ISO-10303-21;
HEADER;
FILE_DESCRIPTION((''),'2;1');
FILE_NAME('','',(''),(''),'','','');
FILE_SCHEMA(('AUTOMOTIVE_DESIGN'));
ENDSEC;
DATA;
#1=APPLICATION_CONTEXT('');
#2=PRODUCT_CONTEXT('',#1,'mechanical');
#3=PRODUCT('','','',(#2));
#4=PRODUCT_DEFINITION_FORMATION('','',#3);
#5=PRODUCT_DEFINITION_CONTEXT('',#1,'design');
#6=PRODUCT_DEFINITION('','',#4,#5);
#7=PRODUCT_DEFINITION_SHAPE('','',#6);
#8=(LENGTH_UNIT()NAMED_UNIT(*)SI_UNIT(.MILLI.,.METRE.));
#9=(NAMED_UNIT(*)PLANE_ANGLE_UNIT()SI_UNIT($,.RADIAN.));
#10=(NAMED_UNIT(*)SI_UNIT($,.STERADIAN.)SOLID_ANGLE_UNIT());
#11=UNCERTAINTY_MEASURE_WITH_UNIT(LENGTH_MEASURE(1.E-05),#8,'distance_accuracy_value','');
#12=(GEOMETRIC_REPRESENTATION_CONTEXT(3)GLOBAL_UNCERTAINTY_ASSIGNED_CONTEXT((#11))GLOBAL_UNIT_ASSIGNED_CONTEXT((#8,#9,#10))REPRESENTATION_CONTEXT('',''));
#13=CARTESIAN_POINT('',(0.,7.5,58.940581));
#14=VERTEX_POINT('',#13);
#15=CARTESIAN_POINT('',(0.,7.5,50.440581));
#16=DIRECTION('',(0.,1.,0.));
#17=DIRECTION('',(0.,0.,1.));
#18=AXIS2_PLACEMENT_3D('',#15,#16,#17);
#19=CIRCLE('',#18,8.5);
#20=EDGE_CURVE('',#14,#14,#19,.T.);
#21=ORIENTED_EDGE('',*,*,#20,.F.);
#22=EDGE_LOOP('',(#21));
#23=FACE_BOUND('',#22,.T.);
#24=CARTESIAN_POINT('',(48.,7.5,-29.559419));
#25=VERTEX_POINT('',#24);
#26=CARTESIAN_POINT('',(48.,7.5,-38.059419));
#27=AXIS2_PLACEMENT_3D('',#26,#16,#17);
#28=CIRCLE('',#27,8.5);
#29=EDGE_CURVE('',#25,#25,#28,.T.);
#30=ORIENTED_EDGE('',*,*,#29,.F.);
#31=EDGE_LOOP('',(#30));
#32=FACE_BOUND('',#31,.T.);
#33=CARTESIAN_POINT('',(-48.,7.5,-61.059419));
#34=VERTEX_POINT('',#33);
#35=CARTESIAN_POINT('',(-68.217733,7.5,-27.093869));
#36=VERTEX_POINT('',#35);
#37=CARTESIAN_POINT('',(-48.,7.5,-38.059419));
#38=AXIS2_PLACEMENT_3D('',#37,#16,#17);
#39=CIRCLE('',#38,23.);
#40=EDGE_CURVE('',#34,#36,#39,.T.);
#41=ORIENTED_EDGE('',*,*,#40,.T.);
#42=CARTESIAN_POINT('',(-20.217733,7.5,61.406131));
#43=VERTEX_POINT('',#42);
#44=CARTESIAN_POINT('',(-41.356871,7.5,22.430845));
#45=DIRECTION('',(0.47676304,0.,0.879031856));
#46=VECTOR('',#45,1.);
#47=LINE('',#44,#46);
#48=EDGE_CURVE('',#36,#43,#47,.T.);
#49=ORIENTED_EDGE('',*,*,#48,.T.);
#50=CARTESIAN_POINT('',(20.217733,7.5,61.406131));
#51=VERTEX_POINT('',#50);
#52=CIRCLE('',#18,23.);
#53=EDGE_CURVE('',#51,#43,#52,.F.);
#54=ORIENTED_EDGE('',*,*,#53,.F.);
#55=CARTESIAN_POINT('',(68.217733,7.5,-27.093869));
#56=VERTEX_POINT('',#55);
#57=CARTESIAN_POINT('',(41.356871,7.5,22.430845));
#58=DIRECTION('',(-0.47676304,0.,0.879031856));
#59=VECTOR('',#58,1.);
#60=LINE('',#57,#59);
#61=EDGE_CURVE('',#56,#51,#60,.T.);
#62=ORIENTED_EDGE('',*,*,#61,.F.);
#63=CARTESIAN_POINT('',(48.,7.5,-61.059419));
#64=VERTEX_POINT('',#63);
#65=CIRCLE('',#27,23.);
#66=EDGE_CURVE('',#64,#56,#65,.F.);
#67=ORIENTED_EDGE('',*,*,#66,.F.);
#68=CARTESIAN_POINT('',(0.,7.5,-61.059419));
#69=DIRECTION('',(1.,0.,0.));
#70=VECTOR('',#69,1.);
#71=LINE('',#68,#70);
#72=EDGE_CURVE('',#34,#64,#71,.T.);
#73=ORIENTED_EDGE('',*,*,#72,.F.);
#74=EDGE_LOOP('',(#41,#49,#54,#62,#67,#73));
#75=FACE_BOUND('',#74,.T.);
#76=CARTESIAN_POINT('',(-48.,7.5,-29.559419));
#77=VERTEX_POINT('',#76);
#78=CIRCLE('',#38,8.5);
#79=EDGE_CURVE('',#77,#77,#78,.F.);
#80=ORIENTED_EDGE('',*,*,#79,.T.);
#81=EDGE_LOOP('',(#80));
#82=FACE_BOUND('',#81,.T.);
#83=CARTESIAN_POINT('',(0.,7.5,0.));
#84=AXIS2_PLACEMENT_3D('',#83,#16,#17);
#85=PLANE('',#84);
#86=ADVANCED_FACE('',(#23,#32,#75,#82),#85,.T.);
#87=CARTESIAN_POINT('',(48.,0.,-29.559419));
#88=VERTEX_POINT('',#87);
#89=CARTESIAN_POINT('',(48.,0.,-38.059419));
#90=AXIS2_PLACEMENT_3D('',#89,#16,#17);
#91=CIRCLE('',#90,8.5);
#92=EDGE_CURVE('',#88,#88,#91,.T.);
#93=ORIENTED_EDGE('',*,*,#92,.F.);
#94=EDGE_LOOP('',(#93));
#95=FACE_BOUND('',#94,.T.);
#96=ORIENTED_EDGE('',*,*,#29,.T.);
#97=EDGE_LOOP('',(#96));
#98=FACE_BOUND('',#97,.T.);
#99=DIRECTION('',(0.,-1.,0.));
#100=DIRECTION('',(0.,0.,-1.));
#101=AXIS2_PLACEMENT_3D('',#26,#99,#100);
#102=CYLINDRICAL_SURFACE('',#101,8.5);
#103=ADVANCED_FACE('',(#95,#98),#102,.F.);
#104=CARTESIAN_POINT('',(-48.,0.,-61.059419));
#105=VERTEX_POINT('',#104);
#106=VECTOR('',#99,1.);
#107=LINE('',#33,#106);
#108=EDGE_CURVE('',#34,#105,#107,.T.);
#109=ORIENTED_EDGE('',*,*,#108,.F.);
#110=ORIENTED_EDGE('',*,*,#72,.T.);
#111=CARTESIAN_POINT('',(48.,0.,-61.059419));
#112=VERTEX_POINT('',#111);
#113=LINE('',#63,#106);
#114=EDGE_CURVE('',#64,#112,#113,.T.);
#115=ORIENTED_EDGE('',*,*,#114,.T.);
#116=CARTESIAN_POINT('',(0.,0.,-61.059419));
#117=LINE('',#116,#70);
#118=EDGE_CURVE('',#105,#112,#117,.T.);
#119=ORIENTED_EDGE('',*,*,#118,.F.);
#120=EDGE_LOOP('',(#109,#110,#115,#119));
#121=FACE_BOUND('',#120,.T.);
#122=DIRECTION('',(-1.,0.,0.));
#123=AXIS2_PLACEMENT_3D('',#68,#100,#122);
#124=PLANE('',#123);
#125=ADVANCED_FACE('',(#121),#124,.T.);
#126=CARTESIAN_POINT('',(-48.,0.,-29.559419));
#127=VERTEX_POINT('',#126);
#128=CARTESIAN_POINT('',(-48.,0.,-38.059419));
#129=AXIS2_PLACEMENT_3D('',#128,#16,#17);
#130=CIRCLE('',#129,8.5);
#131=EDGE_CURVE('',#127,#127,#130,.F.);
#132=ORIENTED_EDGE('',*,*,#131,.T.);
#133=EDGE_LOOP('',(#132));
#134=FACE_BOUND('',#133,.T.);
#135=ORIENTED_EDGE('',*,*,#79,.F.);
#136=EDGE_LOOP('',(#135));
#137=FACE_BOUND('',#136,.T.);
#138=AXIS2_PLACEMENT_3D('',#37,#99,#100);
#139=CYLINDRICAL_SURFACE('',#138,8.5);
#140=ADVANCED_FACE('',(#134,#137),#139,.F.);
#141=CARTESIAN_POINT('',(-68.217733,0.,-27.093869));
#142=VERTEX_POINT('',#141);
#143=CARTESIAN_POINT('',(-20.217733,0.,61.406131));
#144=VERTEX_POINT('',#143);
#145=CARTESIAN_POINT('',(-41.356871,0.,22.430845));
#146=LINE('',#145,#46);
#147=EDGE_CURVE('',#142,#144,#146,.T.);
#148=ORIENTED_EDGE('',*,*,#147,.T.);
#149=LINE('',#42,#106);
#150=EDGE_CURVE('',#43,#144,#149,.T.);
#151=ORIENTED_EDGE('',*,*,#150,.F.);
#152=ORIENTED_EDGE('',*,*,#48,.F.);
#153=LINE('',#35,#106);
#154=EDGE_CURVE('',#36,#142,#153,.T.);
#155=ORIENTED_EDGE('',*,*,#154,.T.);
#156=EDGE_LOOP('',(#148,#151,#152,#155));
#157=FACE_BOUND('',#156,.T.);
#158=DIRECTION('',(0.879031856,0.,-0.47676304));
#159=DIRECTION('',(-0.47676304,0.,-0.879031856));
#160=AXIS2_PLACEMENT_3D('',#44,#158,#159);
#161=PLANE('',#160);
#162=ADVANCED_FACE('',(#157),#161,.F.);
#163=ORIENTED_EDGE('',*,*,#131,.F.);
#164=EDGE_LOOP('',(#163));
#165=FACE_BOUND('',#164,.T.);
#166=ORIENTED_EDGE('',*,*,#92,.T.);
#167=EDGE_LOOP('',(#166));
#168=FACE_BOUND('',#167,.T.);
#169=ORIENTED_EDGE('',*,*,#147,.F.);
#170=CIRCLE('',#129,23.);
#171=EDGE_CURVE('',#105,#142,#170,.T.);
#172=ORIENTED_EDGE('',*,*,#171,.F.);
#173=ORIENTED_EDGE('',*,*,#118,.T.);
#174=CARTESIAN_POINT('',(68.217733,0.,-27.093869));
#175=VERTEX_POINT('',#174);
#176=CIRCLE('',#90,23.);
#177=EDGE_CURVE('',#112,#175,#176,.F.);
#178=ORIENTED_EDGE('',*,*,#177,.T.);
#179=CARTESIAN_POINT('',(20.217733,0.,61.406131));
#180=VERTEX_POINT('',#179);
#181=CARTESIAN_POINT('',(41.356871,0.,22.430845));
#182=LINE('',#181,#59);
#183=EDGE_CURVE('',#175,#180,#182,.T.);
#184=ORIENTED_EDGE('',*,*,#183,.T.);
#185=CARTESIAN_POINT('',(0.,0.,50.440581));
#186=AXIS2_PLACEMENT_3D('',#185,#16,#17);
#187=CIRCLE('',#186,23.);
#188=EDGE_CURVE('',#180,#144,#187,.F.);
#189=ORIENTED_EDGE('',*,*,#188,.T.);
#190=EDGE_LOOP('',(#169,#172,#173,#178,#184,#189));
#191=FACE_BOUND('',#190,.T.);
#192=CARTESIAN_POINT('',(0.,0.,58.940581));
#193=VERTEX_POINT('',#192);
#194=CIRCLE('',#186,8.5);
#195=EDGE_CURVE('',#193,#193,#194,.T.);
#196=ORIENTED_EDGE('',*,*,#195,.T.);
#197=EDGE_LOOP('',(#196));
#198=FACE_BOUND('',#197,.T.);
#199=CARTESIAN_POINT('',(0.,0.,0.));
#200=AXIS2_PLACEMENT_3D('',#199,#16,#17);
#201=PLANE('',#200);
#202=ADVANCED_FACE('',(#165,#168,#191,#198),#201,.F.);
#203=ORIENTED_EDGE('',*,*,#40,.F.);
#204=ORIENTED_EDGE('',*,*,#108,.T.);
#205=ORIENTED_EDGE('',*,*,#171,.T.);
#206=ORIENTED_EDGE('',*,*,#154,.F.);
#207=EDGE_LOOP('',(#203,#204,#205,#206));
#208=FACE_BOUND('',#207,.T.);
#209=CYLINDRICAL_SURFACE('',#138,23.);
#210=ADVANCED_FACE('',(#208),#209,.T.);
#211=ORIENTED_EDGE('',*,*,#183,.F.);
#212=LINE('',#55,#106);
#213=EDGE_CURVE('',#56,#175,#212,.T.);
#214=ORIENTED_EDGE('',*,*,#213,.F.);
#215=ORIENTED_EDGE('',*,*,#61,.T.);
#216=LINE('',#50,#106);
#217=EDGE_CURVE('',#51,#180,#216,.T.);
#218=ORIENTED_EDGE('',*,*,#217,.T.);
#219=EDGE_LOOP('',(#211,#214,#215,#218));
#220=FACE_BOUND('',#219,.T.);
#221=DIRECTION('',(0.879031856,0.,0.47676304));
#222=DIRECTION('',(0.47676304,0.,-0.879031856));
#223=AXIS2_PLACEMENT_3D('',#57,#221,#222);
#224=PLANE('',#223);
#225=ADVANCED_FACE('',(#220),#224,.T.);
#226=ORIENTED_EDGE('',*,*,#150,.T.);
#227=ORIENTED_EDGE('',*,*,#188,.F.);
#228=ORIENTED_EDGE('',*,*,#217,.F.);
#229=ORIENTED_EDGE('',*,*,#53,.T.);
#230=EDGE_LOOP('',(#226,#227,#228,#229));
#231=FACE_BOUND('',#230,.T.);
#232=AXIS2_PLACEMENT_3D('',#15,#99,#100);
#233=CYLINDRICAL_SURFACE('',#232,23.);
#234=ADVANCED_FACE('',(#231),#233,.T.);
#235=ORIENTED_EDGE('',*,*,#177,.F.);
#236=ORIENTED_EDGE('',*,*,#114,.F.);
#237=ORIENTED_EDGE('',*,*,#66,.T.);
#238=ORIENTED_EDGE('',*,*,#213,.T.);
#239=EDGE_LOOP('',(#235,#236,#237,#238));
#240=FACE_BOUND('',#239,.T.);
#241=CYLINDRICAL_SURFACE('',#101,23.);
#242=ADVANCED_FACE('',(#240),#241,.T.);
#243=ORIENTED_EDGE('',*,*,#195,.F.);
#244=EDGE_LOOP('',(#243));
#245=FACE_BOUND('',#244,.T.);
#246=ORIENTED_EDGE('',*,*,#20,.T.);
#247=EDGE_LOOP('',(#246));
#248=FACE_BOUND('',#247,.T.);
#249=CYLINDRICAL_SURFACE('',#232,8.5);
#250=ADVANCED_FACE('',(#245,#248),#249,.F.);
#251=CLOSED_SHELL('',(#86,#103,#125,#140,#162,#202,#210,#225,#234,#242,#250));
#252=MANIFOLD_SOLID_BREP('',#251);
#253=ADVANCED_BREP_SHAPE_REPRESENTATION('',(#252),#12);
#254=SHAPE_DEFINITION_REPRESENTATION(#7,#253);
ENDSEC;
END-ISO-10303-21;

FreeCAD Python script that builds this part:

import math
import FreeCAD as App
import Part
import Sketcher

V = App.Vector
Q = App.Units.Quantity

doc = App.newDocument("Part")
body = doc.addObject("PartDesign::Body", "Body")

sketch1 = doc.addObject("Sketcher::SketchObject", "Sketch")
body.addObject(sketch1)
sketch1.AttachmentSupport = (doc.XZ_Plane, [""])
sketch1.MapMode = "FlatFace"
sketch1.addGeometry(Part.LineSegment(V(48, -61, 0), V(-48, -61, 0)), False)
sketch1.addGeometry(Part.ArcOfCircle(Part.Circle(V(-48, -38, 0), V(0, 0, 1), 23), math.radians(152), math.radians(270)), False)
sketch1.addGeometry(Part.LineSegment(V(-68, -27, 0), V(-20, 61, 0)), False)
sketch1.addGeometry(Part.ArcOfCircle(Part.Circle(V(0, 50, 0), V(0, 0, 1), 23), math.radians(28), math.radians(152)), False)
sketch1.addGeometry(Part.LineSegment(V(20, 61, 0), V(68, -27, 0)), False)
sketch1.addGeometry(Part.ArcOfCircle(Part.Circle(V(48, -38, 0), V(0, 0, 1), 23), math.radians(-90), math.radians(28)), False)
sketch1.addGeometry(Part.Circle(V(0, 50, 0), V(0, 0, 1), 8), False)
sketch1.addGeometry(Part.Circle(V(48, -38, 0), V(0, 0, 1), 8), False)
sketch1.addGeometry(Part.Circle(V(-48, -38, 0), V(0, 0, 1), 8), False)
sketch1.addConstraint(Sketcher.Constraint("Tangent", 0, 2, 1, 2))
sketch1.addConstraint(Sketcher.Constraint("Tangent", 1, 1, 2, 1))
sketch1.addConstraint(Sketcher.Constraint("Tangent", 2, 2, 3, 2))
sketch1.addConstraint(Sketcher.Constraint("Tangent", 3, 1, 4, 1))
sketch1.addConstraint(Sketcher.Constraint("Tangent", 4, 2, 5, 2))
sketch1.addConstraint(Sketcher.Constraint("Tangent", 5, 1, 0, 1))
sketch1.addConstraint(Sketcher.Constraint("Horizontal", 0))
sketch1.addConstraint(Sketcher.Constraint("Coincident", 6, 3, 3, 3))
sketch1.addConstraint(Sketcher.Constraint("Coincident", 7, 3, 5, 3))
sketch1.addConstraint(Sketcher.Constraint("Coincident", 8, 3, 1, 3))
sketch1.addConstraint(Sketcher.Constraint("Equal", 1, 3))
sketch1.addConstraint(Sketcher.Constraint("Equal", 3, 5))
sketch1.addConstraint(Sketcher.Constraint("Equal", 6, 7))
sketch1.addConstraint(Sketcher.Constraint("Equal", 7, 8))
sketch1.addConstraint(Sketcher.Constraint("Symmetric", 2, 2, 3, 1, -2))
sketch1.addConstraint(Sketcher.Constraint("Diameter", 6, Q("17 mm")))
sketch1.addConstraint(Sketcher.Constraint("Radius", 1, Q("23 mm")))
sketch1.addConstraint(Sketcher.Constraint("DistanceX", 0, 2, 0, 1, Q("96 mm")))
sketch1.addConstraint(Sketcher.Constraint("DistanceY", 1, 3, 3, 3, Q("88.5 mm")))
sketch1.addConstraint(Sketcher.Constraint("DistanceY", 1, 3, -1, 1, Q("38.059419 mm")))
pad1 = doc.addObject("PartDesign::Pad", "Pad")
body.addObject(pad1)
pad1.Profile = sketch1
pad1.Length = 7.5
pad1.Reversed = True

doc.recompute()
